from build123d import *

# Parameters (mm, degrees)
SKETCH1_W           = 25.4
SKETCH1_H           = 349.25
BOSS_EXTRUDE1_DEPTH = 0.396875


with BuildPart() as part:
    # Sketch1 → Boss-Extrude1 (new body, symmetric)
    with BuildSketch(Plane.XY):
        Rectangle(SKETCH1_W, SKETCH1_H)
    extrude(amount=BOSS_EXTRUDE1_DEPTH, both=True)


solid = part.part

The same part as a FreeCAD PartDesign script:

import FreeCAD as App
import Part
import Sketcher

V = App.Vector
Q = App.Units.Quantity


def add_polygon(sketch, points):
    """Adds a closed chain of lines whose ends are joined by coincident constraints."""
    first, n = sketch.GeometryCount, len(points)
    for a, b in zip(points, points[1:] + points[:1]):
        sketch.addGeometry(Part.LineSegment(App.Vector(*a, 0), App.Vector(*b, 0)), False)
    for i in range(n):
        sketch.addConstraint(Sketcher.Constraint("Coincident", first + i, 2, first + (i + 1) % n, 1))

doc = App.newDocument("Part")
params = doc.addObject("Spreadsheet::Sheet", "Params")
for row, (alias, value) in enumerate([
    ("sketch1_width", "1 in"),
    ("sketch1_height", "13.75 in"),
    ("pad1_length", "0.03125 in"),
], start=1):
    params.set(f"A{row}", alias)
    params.set(f"B{row}", "=" + value)
    params.setAlias(f"B{row}", alias)

body = doc.addObject("PartDesign::Body", "Body")

sketch1 = doc.addObject("Sketcher::SketchObject", "Sketch")
body.addObject(sketch1)
sketch1.AttachmentSupport = (doc.XY_Plane, [""])
sketch1.MapMode = "FlatFace"
add_polygon(sketch1, [(-13, 175), (-13, -175), (13, -175), (13, 175)])
sketch1.addConstraint([
    Sketcher.Constraint("Vertical", 0),
    Sketcher.Constraint("Horizontal", 1),
    Sketcher.Constraint("Vertical", 2),
    Sketcher.Constraint("Horizontal", 3),
    Sketcher.Constraint("Symmetric", 0, 2, 2, 2, -1, 1),
    Sketcher.Constraint("DistanceX", 1, 1, 1, 2, Q("1 in")),
    Sketcher.Constraint("DistanceY", 0, 2, 0, 1, Q("13.75 in")),
])
sketch1.setExpression("Constraints[9]", "Params.sketch1_width")
sketch1.setExpression("Constraints[10]", "Params.sketch1_height")
pad1 = doc.addObject("PartDesign::Pad", "Pad")
body.addObject(pad1)
pad1.Profile = sketch1
pad1.setExpression("Length", "Params.pad1_length")
pad1.Midplane = True

doc.recompute()
